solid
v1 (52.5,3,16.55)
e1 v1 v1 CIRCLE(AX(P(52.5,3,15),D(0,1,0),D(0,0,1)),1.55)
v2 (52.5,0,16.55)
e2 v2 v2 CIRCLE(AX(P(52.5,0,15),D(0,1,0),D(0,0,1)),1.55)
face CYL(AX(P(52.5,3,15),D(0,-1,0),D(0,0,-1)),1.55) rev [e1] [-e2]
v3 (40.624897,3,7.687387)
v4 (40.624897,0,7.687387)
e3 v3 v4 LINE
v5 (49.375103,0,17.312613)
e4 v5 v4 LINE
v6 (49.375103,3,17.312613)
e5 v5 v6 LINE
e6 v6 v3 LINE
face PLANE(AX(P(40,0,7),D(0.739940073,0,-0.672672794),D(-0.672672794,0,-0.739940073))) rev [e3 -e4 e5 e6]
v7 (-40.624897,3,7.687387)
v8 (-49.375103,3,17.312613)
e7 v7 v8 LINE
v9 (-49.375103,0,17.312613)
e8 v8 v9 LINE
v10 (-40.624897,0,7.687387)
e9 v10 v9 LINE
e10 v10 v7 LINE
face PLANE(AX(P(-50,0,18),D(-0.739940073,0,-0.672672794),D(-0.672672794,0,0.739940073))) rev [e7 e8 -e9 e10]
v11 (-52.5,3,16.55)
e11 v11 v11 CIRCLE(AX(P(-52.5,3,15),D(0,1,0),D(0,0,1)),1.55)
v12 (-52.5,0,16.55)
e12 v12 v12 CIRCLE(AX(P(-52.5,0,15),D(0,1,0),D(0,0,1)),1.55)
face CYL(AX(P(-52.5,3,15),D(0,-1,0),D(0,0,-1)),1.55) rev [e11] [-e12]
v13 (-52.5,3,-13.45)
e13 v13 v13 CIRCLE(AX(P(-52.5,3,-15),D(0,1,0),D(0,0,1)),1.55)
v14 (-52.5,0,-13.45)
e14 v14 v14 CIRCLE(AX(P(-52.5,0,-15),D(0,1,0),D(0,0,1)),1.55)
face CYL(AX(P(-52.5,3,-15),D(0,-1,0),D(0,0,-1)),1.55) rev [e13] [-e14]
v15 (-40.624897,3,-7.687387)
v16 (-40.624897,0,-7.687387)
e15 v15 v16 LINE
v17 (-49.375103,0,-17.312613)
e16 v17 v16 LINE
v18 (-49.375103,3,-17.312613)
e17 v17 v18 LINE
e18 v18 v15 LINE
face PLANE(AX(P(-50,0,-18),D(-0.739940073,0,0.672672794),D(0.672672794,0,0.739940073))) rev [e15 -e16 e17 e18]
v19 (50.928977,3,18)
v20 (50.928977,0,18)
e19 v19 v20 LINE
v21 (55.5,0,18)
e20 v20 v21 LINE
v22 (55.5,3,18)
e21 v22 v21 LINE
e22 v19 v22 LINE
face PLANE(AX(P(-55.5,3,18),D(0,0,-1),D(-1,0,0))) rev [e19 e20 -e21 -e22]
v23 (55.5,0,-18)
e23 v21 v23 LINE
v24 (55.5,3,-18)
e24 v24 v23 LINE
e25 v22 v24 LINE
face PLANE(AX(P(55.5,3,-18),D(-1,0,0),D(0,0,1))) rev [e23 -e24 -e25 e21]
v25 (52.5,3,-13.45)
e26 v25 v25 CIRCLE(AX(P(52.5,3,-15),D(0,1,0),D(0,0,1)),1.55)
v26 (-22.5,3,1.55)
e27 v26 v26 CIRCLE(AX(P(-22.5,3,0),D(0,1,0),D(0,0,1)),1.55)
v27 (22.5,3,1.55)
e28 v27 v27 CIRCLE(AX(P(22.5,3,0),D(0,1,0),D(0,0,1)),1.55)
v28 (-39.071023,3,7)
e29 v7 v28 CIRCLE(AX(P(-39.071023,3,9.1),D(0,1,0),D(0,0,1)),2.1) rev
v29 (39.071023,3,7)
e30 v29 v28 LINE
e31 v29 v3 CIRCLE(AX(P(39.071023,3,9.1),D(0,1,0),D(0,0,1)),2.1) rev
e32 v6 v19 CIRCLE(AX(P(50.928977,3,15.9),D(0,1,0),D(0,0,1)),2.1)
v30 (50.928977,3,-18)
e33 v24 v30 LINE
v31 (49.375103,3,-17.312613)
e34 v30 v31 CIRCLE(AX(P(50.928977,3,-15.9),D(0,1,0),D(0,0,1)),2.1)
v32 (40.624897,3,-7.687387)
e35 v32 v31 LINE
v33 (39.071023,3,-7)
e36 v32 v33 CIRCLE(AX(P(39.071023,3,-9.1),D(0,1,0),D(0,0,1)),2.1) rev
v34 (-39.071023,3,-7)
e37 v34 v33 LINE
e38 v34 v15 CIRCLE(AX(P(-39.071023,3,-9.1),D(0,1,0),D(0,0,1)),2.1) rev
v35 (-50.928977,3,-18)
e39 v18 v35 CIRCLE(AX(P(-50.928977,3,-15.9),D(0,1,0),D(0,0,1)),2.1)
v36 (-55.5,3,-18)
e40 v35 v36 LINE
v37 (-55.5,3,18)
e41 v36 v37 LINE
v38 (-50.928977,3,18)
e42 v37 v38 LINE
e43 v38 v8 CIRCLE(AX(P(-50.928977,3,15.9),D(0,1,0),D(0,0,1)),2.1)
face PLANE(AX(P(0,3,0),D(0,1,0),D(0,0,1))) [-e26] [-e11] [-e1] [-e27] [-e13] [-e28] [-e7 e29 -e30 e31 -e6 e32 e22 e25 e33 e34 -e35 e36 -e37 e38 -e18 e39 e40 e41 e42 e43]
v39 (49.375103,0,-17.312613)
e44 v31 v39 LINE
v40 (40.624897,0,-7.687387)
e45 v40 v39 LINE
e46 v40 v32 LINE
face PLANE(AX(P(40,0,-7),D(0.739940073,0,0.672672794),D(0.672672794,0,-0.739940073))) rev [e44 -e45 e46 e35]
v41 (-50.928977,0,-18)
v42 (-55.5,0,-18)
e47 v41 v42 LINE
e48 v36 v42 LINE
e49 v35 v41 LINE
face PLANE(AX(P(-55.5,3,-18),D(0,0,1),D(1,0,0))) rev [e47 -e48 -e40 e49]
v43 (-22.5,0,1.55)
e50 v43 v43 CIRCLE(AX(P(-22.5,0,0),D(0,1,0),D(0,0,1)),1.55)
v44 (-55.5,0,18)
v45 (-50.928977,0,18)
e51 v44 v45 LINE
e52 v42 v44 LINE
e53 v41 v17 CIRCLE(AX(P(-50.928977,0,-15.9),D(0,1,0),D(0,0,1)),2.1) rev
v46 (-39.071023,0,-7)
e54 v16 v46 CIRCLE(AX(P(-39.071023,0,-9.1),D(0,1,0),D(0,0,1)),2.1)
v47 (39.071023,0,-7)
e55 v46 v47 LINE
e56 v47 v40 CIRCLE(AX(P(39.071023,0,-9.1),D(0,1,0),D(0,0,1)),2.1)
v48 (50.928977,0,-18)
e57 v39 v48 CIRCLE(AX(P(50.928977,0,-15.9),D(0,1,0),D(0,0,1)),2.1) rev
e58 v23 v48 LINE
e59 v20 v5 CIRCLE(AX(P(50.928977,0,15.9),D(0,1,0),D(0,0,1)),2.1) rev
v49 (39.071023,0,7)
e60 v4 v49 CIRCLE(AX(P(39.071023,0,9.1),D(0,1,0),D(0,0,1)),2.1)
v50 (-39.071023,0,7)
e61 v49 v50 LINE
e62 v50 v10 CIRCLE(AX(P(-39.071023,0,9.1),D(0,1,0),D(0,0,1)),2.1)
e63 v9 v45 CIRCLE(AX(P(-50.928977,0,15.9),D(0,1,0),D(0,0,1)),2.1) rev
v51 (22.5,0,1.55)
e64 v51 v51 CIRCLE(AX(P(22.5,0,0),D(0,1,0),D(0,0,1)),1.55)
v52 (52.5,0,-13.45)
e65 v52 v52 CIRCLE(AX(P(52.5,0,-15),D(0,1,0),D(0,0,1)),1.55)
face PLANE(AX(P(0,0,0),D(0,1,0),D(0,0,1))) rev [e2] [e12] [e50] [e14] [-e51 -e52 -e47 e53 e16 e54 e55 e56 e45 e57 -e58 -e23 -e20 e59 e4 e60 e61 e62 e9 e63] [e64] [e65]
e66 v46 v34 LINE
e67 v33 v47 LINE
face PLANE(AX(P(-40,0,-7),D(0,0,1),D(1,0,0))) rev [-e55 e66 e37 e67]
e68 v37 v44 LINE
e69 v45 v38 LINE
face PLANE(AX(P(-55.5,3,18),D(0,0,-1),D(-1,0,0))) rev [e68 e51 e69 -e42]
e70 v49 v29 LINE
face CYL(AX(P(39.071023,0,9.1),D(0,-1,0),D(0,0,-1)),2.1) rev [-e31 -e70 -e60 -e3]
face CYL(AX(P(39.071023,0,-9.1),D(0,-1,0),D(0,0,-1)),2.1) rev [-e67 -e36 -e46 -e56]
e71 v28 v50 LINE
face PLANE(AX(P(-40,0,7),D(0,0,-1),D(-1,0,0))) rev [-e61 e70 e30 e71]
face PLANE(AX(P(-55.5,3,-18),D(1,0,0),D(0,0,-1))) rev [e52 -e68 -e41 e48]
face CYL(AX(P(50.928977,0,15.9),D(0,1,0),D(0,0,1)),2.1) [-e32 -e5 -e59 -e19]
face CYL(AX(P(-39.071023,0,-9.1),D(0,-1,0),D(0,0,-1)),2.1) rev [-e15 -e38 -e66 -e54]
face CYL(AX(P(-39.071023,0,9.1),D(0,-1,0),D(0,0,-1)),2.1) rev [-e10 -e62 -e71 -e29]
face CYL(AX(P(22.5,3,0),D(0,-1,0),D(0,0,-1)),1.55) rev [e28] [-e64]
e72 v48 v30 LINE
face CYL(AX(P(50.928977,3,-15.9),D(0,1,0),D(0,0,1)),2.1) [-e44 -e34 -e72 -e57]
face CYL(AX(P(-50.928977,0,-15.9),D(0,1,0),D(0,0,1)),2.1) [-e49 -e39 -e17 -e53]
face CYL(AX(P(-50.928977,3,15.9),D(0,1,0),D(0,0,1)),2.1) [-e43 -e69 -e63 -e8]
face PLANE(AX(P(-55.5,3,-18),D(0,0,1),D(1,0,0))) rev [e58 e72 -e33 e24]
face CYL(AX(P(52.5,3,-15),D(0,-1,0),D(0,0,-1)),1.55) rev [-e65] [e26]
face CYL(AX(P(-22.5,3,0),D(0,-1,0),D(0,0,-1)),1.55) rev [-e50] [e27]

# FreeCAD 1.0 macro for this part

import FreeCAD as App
import Part
import Sketcher


def edges_at(feature, points):
    """Names of the edges that pass closest to the given points."""
    edges = feature.Shape.Edges
    near = lambda p: min(range(len(edges)), key=lambda i: edges[i].distToShape(Part.Vertex(*p))[0])
    return sorted({f"Edge{near(p) + 1}" for p in points})


def add_polygon(sketch, points):
    """Adds a closed chain of lines whose ends are joined by coincident constraints."""
    first, n = sketch.GeometryCount, len(points)
    for a, b in zip(points, points[1:] + points[:1]):
        sketch.addGeometry(Part.LineSegment(App.Vector(*a, 0), App.Vector(*b, 0)), False)
    for i in range(n):
        sketch.addConstraint(Sketcher.Constraint("Coincident", first + i, 2, first + (i + 1) % n, 1))

doc = App.newDocument("Part")
body = doc.addObject("PartDesign::Body", "Body")

# Sketch on XZ plane
sketch1 = body.newObject("Sketcher::SketchObject", "Sketch")
sketch1.AttachmentSupport = (doc.getObject("XZ_Plane"), [""])
sketch1.MapMode = "FlatFace"
add_polygon(sketch1, [(-55.5, -18), (-55.5, 18), (55.5, 18), (55.5, -18)])  # lines 0-3
sketch1.addGeometry(Part.Circle(App.Vector(-52.5, 15, 0), App.Vector(0, 0, 1), 1.6), False)  # 4
sketch1.addGeometry(Part.Circle(App.Vector(52.5, 15, 0), App.Vector(0, 0, 1), 1.6), False)  # 5
sketch1.addGeometry(Part.Circle(App.Vector(-22.5, 0, 0), App.Vector(0, 0, 1), 1.6), False)  # 6
sketch1.addGeometry(Part.Circle(App.Vector(-52.5, -15, 0), App.Vector(0, 0, 1), 1.6), False)  # 7
sketch1.addGeometry(Part.Circle(App.Vector(22.5, 0, 0), App.Vector(0, 0, 1), 1.6), False)  # 8
sketch1.addGeometry(Part.Circle(App.Vector(52.5, -15, 0), App.Vector(0, 0, 1), 1.6), False)  # 9
sketch1.addConstraint(Sketcher.Constraint("Vertical", 0))
sketch1.addConstraint(Sketcher.Constraint("Horizontal", 1))
sketch1.addConstraint(Sketcher.Constraint("Vertical", 2))
sketch1.addConstraint(Sketcher.Constraint("Horizontal", 3))
sketch1.addConstraint(Sketcher.Constraint("Equal", 4, 5))
sketch1.addConstraint(Sketcher.Constraint("Equal", 5, 6))
sketch1.addConstraint(Sketcher.Constraint("Equal", 6, 7))
sketch1.addConstraint(Sketcher.Constraint("Equal", 7, 8))
sketch1.addConstraint(Sketcher.Constraint("Equal", 8, 9))
sketch1.addConstraint(Sketcher.Constraint("Symmetric", 5, 3, 7, 3, -1, 1))
sketch1.addConstraint(Sketcher.Constraint("Symmetric", 6, 3, 8, 3, -1, 1))
sketch1.addConstraint(Sketcher.Constraint("Symmetric", 4, 3, 9, 3, -1, 1))
sketch1.addConstraint(Sketcher.Constraint("Symmetric", 0, 2, 2, 2, -1, 1))
sketch1.addConstraint(Sketcher.Constraint("Symmetric", 4, 3, 5, 3, -2))
sketch1.addConstraint(Sketcher.Constraint("PointOnObject", 6, 3, -1))
sketch1.addConstraint(Sketcher.Constraint("Diameter", 4, 3.1))
sketch1.addConstraint(Sketcher.Constraint("DistanceX", 1, 1, 1, 2, 111.0))
sketch1.addConstraint(Sketcher.Constraint("DistanceY", 0, 1, 0, 2, 36.0))
sketch1.addConstraint(Sketcher.Constraint("DistanceY", -1, 1, 4, 3, 15.0))
sketch1.addConstraint(Sketcher.Constraint("DistanceX", 4, 3, 5, 3, 105.0))
sketch1.addConstraint(Sketcher.Constraint("DistanceX", 4, 3, 6, 3, 30.0))
pad1 = body.newObject("PartDesign::Pad", "Pad")
pad1.Profile = sketch1
pad1.Length = 3
pad1.Reversed = True

# Sketch on XZ plane
sketch2 = body.newObject("Sketcher::SketchObject", "Sketch001")
sketch2.AttachmentSupport = (doc.getObject("XZ_Plane"), [""])
sketch2.MapMode = "FlatFace"
sketch2.AttachmentOffset = App.Placement(App.Vector(0, 0, -3), App.Rotation())
add_polygon(sketch2, [(-50, -18), (-40, -7), (40, -7), (50, -18)])  # lines 0-3
add_polygon(sketch2, [(-50, 18), (50, 18), (40, 7), (-40, 7)])  # lines 4-7
sketch2.addConstraint(Sketcher.Constraint("Horizontal", 1))
sketch2.addConstraint(Sketcher.Constraint("Horizontal", 3))
sketch2.addConstraint(Sketcher.Constraint("Horizontal", 4))
sketch2.addConstraint(Sketcher.Constraint("Horizontal", 6))
sketch2.addConstraint(Sketcher.Constraint("Symmetric", 3, 2, 4, 2, -1, 1))
sketch2.addConstraint(Sketcher.Constraint("Symmetric", 0, 2, 5, 2, -1, 1))
sketch2.addConstraint(Sketcher.Constraint("Parallel", 2, 7))
sketch2.addConstraint(Sketcher.Constraint("Vertical", 2, 2, 4, 2))
sketch2.addConstraint(Sketcher.Constraint("Vertical", 1, 2, 5, 2))
sketch2.addConstraint(Sketcher.Constraint("Vertical", 0, 2, 6, 2))
sketch2.addConstraint(Sketcher.Constraint("DistanceX", 1, 1, 1, 2, 80.0))
sketch2.addConstraint(Sketcher.Constraint("DistanceX", 3, 2, 3, 1, 100.0))
sketch2.addConstraint(Sketcher.Constraint("DistanceY", 0, 2, -1, 1, 7.0))
sketch2.addConstraint(Sketcher.Constraint("DistanceY", 2, 2, -1, 1, 18.0))
pocket1 = body.newObject("PartDesign::Pocket", "Pocket")
pocket1.Profile = sketch2
pocket1.Type = "ThroughAll"
pocket1.Reversed = True
doc.recompute()

fillet = body.newObject("PartDesign::Fillet", "Fillet")
fillet.Base = (pocket1, edges_at(pocket1, [
    (-50, 1.5, -18),
    (50, 1.5, -18),
    (40, 1.5, -7),
    (-40, 1.5, -7),
    (40, 1.5, 7),
    (50, 1.5, 18),
    (-50, 1.5, 18),
    (-40, 1.5, 7),
]))
fillet.Radius = 2.1

doc.recompute()
